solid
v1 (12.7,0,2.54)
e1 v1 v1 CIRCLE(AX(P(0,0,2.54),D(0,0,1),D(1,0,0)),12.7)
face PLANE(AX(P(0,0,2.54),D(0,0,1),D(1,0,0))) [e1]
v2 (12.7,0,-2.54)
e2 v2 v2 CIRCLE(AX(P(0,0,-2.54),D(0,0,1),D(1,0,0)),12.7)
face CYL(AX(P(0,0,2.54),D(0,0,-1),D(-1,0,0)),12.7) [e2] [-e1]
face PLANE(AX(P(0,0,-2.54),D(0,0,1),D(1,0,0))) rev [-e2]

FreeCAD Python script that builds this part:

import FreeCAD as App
import Part
import Sketcher
Q = App.Units.Quantity

doc = App.newDocument("Part")
params = doc.addObject("Spreadsheet::Sheet", "Params")
for row, (alias, value) in enumerate([
    ("sketch1_diameter", "1 in"),
    ("pad1_length", "0.2 in"),
], start=1):
    params.set(f"A{row}", alias)
    params.set(f"B{row}", "=" + value)
    params.setAlias(f"B{row}", alias)

body = doc.addObject("PartDesign::Body", "Body")

# Sketch on XY plane
sketch1 = doc.addObject("Sketcher::SketchObject", "Sketch")
body.addObject(sketch1)
sketch1.AttachmentSupport = (doc.XY_Plane, [""])
sketch1.MapMode = "FlatFace"
sketch1.addGeometry(Part.Circle(App.Vector(0, 0, 0), App.Vector(0, 0, 1), 13), False)
sketch1.addConstraint(Sketcher.Constraint("Coincident", 0, 3, -1, 1))
sketch1.addConstraint(Sketcher.Constraint("Diameter", 0, Q("1 in")))
sketch1.setExpression("Constraints[1]", "Params.sketch1_diameter")
pad1 = doc.addObject("PartDesign::Pad", "Pad")
body.addObject(pad1)
pad1.Profile = sketch1
pad1.setExpression("Length", "Params.pad1_length")
pad1.Midplane = True

doc.recompute()
